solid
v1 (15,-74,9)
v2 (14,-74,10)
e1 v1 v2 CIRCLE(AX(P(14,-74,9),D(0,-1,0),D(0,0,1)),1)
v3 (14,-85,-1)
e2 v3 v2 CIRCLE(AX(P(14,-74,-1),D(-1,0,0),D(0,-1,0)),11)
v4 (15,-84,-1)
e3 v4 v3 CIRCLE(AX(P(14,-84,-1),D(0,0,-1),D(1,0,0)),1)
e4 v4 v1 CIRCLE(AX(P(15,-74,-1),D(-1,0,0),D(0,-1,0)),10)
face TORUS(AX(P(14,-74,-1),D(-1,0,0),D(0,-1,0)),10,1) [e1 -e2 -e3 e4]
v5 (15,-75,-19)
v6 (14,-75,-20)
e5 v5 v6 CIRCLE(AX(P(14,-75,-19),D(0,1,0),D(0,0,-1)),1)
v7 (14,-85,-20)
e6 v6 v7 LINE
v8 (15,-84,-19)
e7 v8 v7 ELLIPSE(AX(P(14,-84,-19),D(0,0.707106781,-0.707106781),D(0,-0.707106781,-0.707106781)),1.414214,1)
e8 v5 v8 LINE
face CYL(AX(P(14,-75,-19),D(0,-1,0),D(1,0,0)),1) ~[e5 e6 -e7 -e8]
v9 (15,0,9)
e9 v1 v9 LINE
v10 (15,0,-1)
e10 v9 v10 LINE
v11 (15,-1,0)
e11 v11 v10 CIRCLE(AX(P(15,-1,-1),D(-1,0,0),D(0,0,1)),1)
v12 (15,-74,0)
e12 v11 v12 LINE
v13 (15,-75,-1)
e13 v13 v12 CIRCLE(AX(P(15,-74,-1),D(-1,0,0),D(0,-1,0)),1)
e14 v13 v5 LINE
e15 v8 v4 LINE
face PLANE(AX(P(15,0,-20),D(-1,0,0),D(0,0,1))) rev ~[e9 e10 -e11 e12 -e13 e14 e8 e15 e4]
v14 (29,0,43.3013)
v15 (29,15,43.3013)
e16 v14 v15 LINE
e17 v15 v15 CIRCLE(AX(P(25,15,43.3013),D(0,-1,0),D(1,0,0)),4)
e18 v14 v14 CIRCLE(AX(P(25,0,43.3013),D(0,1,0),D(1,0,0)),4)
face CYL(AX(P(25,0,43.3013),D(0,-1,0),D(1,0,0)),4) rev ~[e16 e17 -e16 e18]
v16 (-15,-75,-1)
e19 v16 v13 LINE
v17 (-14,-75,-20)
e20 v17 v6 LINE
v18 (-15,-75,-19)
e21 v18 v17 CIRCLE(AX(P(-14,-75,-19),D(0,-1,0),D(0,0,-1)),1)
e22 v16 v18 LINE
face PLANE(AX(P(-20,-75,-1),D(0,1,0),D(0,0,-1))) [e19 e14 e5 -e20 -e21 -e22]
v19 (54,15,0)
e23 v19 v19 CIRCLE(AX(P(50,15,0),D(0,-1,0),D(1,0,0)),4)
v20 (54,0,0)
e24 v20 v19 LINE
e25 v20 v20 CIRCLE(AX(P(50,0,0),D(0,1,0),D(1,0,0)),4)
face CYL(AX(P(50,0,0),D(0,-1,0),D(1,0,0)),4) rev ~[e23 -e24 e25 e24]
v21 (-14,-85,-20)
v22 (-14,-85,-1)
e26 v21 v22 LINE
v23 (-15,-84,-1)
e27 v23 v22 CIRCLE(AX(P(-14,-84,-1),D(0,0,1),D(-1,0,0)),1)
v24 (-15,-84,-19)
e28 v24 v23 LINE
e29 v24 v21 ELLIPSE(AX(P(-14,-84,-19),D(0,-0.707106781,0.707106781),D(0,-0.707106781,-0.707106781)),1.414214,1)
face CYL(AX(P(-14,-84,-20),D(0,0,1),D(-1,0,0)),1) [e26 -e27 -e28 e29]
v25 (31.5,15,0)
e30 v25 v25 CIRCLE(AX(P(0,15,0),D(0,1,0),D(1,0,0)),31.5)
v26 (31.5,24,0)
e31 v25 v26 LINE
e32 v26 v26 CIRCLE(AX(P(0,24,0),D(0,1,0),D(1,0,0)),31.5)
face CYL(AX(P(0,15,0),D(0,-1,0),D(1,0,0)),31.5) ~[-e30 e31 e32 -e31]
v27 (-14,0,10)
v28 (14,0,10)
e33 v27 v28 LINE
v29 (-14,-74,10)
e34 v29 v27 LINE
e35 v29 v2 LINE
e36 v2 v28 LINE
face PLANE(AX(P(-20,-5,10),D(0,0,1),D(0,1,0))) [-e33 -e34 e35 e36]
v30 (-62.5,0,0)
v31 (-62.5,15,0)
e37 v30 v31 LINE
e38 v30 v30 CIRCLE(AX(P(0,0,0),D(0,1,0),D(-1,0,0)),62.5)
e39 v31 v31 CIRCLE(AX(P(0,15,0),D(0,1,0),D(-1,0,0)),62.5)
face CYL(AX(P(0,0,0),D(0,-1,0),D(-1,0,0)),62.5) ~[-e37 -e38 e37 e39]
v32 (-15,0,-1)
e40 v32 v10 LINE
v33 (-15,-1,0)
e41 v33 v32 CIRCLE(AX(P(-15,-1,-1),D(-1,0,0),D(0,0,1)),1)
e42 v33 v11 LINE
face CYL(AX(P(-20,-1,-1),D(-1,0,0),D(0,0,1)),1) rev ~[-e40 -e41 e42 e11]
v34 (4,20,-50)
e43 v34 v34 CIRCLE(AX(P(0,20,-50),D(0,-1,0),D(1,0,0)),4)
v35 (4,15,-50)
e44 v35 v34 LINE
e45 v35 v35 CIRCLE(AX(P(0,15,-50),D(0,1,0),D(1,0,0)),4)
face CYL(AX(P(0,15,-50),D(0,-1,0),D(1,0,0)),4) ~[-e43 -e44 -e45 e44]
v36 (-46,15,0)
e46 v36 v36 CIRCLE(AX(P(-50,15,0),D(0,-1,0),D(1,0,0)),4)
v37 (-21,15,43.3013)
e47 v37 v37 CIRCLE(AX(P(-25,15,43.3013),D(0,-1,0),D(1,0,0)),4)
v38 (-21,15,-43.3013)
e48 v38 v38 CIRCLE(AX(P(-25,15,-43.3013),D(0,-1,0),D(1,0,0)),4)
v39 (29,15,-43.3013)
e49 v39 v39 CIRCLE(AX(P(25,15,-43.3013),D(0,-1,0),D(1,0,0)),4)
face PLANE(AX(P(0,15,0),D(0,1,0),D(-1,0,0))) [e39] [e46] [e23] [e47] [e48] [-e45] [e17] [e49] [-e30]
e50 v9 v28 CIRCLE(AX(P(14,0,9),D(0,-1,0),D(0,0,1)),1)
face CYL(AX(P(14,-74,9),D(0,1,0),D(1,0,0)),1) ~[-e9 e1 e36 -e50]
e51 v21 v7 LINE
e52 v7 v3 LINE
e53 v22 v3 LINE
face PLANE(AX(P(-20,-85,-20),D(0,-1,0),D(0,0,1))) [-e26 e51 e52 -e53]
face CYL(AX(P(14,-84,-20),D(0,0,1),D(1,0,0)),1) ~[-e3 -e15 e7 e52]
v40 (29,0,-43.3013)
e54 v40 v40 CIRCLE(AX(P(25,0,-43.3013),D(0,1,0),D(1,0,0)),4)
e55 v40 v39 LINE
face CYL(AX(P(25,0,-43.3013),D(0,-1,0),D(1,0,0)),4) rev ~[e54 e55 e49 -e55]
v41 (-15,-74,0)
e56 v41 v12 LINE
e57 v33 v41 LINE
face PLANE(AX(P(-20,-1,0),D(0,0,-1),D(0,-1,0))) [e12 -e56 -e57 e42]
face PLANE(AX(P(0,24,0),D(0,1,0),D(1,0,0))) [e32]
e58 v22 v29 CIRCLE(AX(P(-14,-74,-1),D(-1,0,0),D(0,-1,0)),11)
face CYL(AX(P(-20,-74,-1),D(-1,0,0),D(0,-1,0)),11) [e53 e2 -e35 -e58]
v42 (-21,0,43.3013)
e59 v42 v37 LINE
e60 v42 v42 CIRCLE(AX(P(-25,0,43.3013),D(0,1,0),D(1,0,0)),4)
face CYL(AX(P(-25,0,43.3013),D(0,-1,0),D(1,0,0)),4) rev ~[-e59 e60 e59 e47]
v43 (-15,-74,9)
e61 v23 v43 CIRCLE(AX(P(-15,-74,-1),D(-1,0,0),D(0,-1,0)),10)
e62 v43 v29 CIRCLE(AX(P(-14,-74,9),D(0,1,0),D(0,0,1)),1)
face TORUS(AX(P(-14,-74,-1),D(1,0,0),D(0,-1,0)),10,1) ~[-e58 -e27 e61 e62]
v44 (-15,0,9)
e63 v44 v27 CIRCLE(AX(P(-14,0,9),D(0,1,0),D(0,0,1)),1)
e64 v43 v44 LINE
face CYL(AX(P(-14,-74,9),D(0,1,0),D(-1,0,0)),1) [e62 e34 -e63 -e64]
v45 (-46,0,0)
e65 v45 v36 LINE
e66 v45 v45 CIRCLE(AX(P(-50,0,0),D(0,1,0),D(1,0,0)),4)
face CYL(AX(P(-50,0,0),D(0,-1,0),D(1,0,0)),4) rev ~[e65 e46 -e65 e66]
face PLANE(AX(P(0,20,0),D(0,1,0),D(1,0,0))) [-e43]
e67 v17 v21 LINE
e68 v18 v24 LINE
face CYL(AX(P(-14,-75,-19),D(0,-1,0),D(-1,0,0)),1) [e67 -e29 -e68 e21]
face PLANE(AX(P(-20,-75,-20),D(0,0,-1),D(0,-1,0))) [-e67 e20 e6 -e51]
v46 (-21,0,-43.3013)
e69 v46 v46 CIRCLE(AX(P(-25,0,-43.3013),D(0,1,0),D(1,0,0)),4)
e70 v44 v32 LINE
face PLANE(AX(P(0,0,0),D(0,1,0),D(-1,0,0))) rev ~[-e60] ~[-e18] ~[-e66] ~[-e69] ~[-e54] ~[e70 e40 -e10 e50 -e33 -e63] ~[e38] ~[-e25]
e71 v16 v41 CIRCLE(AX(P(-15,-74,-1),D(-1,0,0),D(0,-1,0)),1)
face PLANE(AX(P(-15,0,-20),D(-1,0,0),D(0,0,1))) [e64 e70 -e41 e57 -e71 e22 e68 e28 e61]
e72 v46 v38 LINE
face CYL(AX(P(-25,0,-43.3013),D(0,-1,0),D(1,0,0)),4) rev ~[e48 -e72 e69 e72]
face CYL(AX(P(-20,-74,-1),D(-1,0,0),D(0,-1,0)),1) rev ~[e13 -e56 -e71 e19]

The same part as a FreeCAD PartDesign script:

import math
import FreeCAD as App
import Part
import Sketcher
from FreeCAD import Vector
Q = App.Units.Quantity


def edges_at(feature, points):
    """Names of the edges that pass closest to the given points."""
    edges = feature.Shape.Edges
    near = lambda p: min(range(len(edges)), key=lambda i: edges[i].distToShape(Part.Vertex(*p))[0])
    return sorted({f"Edge{near(p) + 1}" for p in points})

doc = App.newDocument("Part")
body = doc.addObject("PartDesign::Body", "Body")

# Sketch on XZ plane
sketch1 = body.newObject("Sketcher::SketchObject", "Sketch")
sketch1.AttachmentSupport = (doc.getObject("XZ_Plane"), [""])
sketch1.MapMode = "FlatFace"
sketch1.addGeometry(Part.Circle(Vector(0, 0, 0), Vector(0, 0, 1), 62), False)
sketch1.addConstraint([
    Sketcher.Constraint("Coincident", 0, 3, -1, 1),
    Sketcher.Constraint("Diameter", 0, Q("125 mm")),
])
pad1 = body.newObject("PartDesign::Pad", "Pad")
pad1.Profile = sketch1
pad1.Length = 15
pad1.Reversed = True

# Sketch on XZ plane
sketch2 = body.newObject("Sketcher::SketchObject", "Sketch001")
sketch2.AttachmentSupport = (doc.getObject("XZ_Plane"), [""])
sketch2.MapMode = "FlatFace"
sketch2.addGeometry([
    Part.Circle(Vector(50, 0, 0), Vector(0, 0, 1), 4),  # 0
    Part.Circle(Vector(25, 43.3, 0), Vector(0, 0, 1), 4),  # 1
    Part.Circle(Vector(25, -43.3, 0), Vector(0, 0, 1), 4),  # 2
    Part.Circle(Vector(-25, 43.3, 0), Vector(0, 0, 1), 4),  # 3
    Part.Circle(Vector(-25, -43.3, 0), Vector(0, 0, 1), 4),  # 4
    Part.Circle(Vector(-50, 0, 0), Vector(0, 0, 1), 4),  # 5
], False)
sketch2.addConstraint([
    Sketcher.Constraint("Equal", 0, 1),
    Sketcher.Constraint("Equal", 1, 2),
    Sketcher.Constraint("Equal", 2, 3),
    Sketcher.Constraint("Equal", 3, 4),
    Sketcher.Constraint("Equal", 4, 5),
    Sketcher.Constraint("Symmetric", 2, 3, 3, 3, -1, 1),
    Sketcher.Constraint("Symmetric", 1, 3, 4, 3, -1, 1),
    Sketcher.Constraint("Symmetric", 0, 3, 5, 3, -1, 1),
    Sketcher.Constraint("Symmetric", 1, 3, 3, 3, -2),
    Sketcher.Constraint("PointOnObject", 0, 3, -1),
    Sketcher.Constraint("Diameter", 0, Q("8 mm")),
    Sketcher.Constraint("DistanceX", 5, 3, 0, 3, Q("100 mm")),
    Sketcher.Constraint("DistanceX", -1, 1, 1, 3, Q("25 mm")),
    Sketcher.Constraint("DistanceY", -1, 1, 1, 3, Q("43.3013 mm")),
])
pocket1 = body.newObject("PartDesign::Pocket", "Pocket")
pocket1.Profile = sketch2
pocket1.Length = 20

# Sketch on XZ plane
sketch3 = body.newObject("Sketcher::SketchObject", "Sketch002")
sketch3.AttachmentSupport = (doc.getObject("XZ_Plane"), [""])
sketch3.MapMode = "FlatFace"
sketch3.AttachmentOffset = App.Placement(Vector(0, 0, -15), App.Rotation())
sketch3.addGeometry(Part.Circle(Vector(0, 0, 0), Vector(0, 0, 1), 32), False)
sketch3.addConstraint([
    Sketcher.Constraint("Coincident", 0, 3, -1, 1),
    Sketcher.Constraint("Diameter", 0, Q("63 mm")),
])
pad2 = body.newObject("PartDesign::Pad", "Pad001")
pad2.Profile = sketch3
pad2.Length = 9
pad2.Reversed = True

# Sketch on XZ plane
sketch4 = body.newObject("Sketcher::SketchObject", "Sketch003")
sketch4.AttachmentSupport = (doc.getObject("XZ_Plane"), [""])
sketch4.MapMode = "FlatFace"
sketch4.AttachmentOffset = App.Placement(Vector(0, 0, -15), App.Rotation())
sketch4.addGeometry(Part.Circle(Vector(0, -50, 0), Vector(0, 0, 1), 4), False)
sketch4.addConstraint([
    Sketcher.Constraint("PointOnObject", 0, 3, -2),
    Sketcher.Constraint("Diameter", 0, Q("8 mm")),
    Sketcher.Constraint("DistanceY", 0, 3, -1, 1, Q("50 mm")),
])
pad3 = body.newObject("PartDesign::Pad", "Pad002")
pad3.Profile = sketch4
pad3.Length = 5
pad3.Reversed = True

# Sketch on YZ plane
sketch5 = body.newObject("Sketcher::SketchObject", "Sketch004")
sketch5.AttachmentSupport = (doc.getObject("YZ_Plane"), [""])
sketch5.MapMode = "FlatFace"
sketch5.AttachmentOffset = App.Placement(Vector(0, 0, -20), App.Rotation())
sketch5.addGeometry([
    Part.ArcOfCircle(Part.Circle(Vector(-1, -1, 0), Vector(0, 0, 1), 1), math.radians(0), math.radians(90)),  # 0
    Part.LineSegment(Vector(-1, 0, 0), Vector(-74, 0, 0)),  # 1
    Part.ArcOfCircle(Part.Circle(Vector(-74, -1, 0), Vector(0, 0, 1), 1), math.radians(90), math.radians(180)),  # 2
    Part.LineSegment(Vector(-75, -1, 0), Vector(-75, -20, 0)),  # 3
    Part.LineSegment(Vector(-75, -20, 0), Vector(-85, -20, 0)),  # 4
    Part.LineSegment(Vector(-85, -20, 0), Vector(-85, -1, 0)),  # 5
    Part.ArcOfCircle(Part.Circle(Vector(-74, -1, 0), Vector(0, 0, 1), 11), math.radians(90), math.radians(180)),  # 6
    Part.LineSegment(Vector(-74, 10, 0), Vector(0, 10, 0)),  # 7
    Part.LineSegment(Vector(0, 10, 0), Vector(0, -1, 0)),  # 8
], False)
sketch5.addConstraint([
    Sketcher.Constraint("Tangent", 0, 2, 1, 1),
    Sketcher.Constraint("Tangent", 1, 2, 2, 1),
    Sketcher.Constraint("Tangent", 2, 2, 3, 1),
    Sketcher.Constraint("Coincident", 3, 2, 4, 1),
    Sketcher.Constraint("Coincident", 4, 2, 5, 1),
    Sketcher.Constraint("Tangent", 5, 2, 6, 2),
    Sketcher.Constraint("Tangent", 6, 1, 7, 1),
    Sketcher.Constraint("Coincident", 7, 2, 8, 1),
    Sketcher.Constraint("Tangent", 8, 2, 0, 1),
    Sketcher.Constraint("Horizontal", 1),
    Sketcher.Constraint("Vertical", 3),
    Sketcher.Constraint("Horizontal", 4),
    Sketcher.Constraint("Vertical", 5),
    Sketcher.Constraint("Horizontal", 7),
    Sketcher.Constraint("Vertical", 8),
    Sketcher.Constraint("Coincident", 6, 3, 2, 3),
    Sketcher.Constraint("Equal", 0, 2),
    Sketcher.Constraint("PointOnObject", 0, 2, -1),
    Sketcher.Constraint("PointOnObject", 7, 2, -2),
    Sketcher.Constraint("Radius", 0, Q("1 mm")),
    Sketcher.Constraint("DistanceX", 4, 2, 4, 1, Q("10 mm")),
    Sketcher.Constraint("DistanceX", 2, 2, -1, 1, Q("75 mm")),
    Sketcher.Constraint("DistanceY", 3, 2, -1, 1, Q("20 mm")),
])
pad4 = body.newObject("PartDesign::Pad", "Pad003")
pad4.Profile = sketch5
pad4.Length = 35

# Sketch on YZ plane
sketch6 = body.newObject("Sketcher::SketchObject", "Sketch005")
sketch6.AttachmentSupport = (doc.getObject("YZ_Plane"), [""])
sketch6.MapMode = "FlatFace"
sketch6.AttachmentOffset = App.Placement(Vector(0, 0, -20), App.Rotation())
sketch6.addGeometry([
    Part.ArcOfCircle(Part.Circle(Vector(-1, -1, 0), Vector(0, 0, 1), 1), math.radians(0), math.radians(90)),  # 0
    Part.LineSegment(Vector(-1, 0, 0), Vector(-74, 0, 0)),  # 1
    Part.ArcOfCircle(Part.Circle(Vector(-74, -1, 0), Vector(0, 0, 1), 1), math.radians(90), math.radians(180)),  # 2
    Part.LineSegment(Vector(-75, -1, 0), Vector(-75, -20, 0)),  # 3
    Part.LineSegment(Vector(-75, -20, 0), Vector(-85, -20, 0)),  # 4
    Part.LineSegment(Vector(-85, -20, 0), Vector(-85, -1, 0)),  # 5
    Part.ArcOfCircle(Part.Circle(Vector(-74, -1, 0), Vector(0, 0, 1), 11), math.radians(90), math.radians(180)),  # 6
    Part.LineSegment(Vector(-74, 10, 0), Vector(0, 10, 0)),  # 7
    Part.LineSegment(Vector(0, 10, 0), Vector(0, -1, 0)),  # 8
], False)
sketch6.addConstraint([
    Sketcher.Constraint("Tangent", 0, 2, 1, 1),
    Sketcher.Constraint("Tangent", 1, 2, 2, 1),
    Sketcher.Constraint("Tangent", 2, 2, 3, 1),
    Sketcher.Constraint("Coincident", 3, 2, 4, 1),
    Sketcher.Constraint("Coincident", 4, 2, 5, 1),
    Sketcher.Constraint("Tangent", 5, 2, 6, 2),
    Sketcher.Constraint("Tangent", 6, 1, 7, 1),
    Sketcher.Constraint("Coincident", 7, 2, 8, 1),
    Sketcher.Constraint("Tangent", 8, 2, 0, 1),
    Sketcher.Constraint("Horizontal", 1),
    Sketcher.Constraint("Vertical", 3),
    Sketcher.Constraint("Horizontal", 4),
    Sketcher.Constraint("Vertical", 5),
    Sketcher.Constraint("Horizontal", 7),
    Sketcher.Constraint("Vertical", 8),
    Sketcher.Constraint("Coincident", 6, 3, 2, 3),
    Sketcher.Constraint("Equal", 0, 2),
    Sketcher.Constraint("PointOnObject", 0, 2, -1),
    Sketcher.Constraint("PointOnObject", 7, 2, -2),
    Sketcher.Constraint("Radius", 0, Q("1 mm")),
    Sketcher.Constraint("DistanceX", 4, 2, 4, 1, Q("10 mm")),
    Sketcher.Constraint("DistanceX", 2, 2, -1, 1, Q("75 mm")),
    Sketcher.Constraint("DistanceY", 3, 2, -1, 1, Q("20 mm")),
])
pocket2 = body.newObject("PartDesign::Pocket", "Pocket001")
pocket2.Profile = sketch6
pocket2.Length = 5
pocket2.Reversed = True
doc.recompute()

fillet = body.newObject("PartDesign::Fillet", "Fillet")
fillet.Base = (pocket2, edges_at(pocket2, [
    (15, -80, -20),
    (-15, -80, -20),
    (-15, -81.778, 6.778),
    (-15, -85, -10.5),
    (-15, -37, 10),
    (15, -81.778, 6.778),
    (15, -37, 10),
    (15, -85, -10.5),
]))
fillet.Radius = 1

doc.recompute()
